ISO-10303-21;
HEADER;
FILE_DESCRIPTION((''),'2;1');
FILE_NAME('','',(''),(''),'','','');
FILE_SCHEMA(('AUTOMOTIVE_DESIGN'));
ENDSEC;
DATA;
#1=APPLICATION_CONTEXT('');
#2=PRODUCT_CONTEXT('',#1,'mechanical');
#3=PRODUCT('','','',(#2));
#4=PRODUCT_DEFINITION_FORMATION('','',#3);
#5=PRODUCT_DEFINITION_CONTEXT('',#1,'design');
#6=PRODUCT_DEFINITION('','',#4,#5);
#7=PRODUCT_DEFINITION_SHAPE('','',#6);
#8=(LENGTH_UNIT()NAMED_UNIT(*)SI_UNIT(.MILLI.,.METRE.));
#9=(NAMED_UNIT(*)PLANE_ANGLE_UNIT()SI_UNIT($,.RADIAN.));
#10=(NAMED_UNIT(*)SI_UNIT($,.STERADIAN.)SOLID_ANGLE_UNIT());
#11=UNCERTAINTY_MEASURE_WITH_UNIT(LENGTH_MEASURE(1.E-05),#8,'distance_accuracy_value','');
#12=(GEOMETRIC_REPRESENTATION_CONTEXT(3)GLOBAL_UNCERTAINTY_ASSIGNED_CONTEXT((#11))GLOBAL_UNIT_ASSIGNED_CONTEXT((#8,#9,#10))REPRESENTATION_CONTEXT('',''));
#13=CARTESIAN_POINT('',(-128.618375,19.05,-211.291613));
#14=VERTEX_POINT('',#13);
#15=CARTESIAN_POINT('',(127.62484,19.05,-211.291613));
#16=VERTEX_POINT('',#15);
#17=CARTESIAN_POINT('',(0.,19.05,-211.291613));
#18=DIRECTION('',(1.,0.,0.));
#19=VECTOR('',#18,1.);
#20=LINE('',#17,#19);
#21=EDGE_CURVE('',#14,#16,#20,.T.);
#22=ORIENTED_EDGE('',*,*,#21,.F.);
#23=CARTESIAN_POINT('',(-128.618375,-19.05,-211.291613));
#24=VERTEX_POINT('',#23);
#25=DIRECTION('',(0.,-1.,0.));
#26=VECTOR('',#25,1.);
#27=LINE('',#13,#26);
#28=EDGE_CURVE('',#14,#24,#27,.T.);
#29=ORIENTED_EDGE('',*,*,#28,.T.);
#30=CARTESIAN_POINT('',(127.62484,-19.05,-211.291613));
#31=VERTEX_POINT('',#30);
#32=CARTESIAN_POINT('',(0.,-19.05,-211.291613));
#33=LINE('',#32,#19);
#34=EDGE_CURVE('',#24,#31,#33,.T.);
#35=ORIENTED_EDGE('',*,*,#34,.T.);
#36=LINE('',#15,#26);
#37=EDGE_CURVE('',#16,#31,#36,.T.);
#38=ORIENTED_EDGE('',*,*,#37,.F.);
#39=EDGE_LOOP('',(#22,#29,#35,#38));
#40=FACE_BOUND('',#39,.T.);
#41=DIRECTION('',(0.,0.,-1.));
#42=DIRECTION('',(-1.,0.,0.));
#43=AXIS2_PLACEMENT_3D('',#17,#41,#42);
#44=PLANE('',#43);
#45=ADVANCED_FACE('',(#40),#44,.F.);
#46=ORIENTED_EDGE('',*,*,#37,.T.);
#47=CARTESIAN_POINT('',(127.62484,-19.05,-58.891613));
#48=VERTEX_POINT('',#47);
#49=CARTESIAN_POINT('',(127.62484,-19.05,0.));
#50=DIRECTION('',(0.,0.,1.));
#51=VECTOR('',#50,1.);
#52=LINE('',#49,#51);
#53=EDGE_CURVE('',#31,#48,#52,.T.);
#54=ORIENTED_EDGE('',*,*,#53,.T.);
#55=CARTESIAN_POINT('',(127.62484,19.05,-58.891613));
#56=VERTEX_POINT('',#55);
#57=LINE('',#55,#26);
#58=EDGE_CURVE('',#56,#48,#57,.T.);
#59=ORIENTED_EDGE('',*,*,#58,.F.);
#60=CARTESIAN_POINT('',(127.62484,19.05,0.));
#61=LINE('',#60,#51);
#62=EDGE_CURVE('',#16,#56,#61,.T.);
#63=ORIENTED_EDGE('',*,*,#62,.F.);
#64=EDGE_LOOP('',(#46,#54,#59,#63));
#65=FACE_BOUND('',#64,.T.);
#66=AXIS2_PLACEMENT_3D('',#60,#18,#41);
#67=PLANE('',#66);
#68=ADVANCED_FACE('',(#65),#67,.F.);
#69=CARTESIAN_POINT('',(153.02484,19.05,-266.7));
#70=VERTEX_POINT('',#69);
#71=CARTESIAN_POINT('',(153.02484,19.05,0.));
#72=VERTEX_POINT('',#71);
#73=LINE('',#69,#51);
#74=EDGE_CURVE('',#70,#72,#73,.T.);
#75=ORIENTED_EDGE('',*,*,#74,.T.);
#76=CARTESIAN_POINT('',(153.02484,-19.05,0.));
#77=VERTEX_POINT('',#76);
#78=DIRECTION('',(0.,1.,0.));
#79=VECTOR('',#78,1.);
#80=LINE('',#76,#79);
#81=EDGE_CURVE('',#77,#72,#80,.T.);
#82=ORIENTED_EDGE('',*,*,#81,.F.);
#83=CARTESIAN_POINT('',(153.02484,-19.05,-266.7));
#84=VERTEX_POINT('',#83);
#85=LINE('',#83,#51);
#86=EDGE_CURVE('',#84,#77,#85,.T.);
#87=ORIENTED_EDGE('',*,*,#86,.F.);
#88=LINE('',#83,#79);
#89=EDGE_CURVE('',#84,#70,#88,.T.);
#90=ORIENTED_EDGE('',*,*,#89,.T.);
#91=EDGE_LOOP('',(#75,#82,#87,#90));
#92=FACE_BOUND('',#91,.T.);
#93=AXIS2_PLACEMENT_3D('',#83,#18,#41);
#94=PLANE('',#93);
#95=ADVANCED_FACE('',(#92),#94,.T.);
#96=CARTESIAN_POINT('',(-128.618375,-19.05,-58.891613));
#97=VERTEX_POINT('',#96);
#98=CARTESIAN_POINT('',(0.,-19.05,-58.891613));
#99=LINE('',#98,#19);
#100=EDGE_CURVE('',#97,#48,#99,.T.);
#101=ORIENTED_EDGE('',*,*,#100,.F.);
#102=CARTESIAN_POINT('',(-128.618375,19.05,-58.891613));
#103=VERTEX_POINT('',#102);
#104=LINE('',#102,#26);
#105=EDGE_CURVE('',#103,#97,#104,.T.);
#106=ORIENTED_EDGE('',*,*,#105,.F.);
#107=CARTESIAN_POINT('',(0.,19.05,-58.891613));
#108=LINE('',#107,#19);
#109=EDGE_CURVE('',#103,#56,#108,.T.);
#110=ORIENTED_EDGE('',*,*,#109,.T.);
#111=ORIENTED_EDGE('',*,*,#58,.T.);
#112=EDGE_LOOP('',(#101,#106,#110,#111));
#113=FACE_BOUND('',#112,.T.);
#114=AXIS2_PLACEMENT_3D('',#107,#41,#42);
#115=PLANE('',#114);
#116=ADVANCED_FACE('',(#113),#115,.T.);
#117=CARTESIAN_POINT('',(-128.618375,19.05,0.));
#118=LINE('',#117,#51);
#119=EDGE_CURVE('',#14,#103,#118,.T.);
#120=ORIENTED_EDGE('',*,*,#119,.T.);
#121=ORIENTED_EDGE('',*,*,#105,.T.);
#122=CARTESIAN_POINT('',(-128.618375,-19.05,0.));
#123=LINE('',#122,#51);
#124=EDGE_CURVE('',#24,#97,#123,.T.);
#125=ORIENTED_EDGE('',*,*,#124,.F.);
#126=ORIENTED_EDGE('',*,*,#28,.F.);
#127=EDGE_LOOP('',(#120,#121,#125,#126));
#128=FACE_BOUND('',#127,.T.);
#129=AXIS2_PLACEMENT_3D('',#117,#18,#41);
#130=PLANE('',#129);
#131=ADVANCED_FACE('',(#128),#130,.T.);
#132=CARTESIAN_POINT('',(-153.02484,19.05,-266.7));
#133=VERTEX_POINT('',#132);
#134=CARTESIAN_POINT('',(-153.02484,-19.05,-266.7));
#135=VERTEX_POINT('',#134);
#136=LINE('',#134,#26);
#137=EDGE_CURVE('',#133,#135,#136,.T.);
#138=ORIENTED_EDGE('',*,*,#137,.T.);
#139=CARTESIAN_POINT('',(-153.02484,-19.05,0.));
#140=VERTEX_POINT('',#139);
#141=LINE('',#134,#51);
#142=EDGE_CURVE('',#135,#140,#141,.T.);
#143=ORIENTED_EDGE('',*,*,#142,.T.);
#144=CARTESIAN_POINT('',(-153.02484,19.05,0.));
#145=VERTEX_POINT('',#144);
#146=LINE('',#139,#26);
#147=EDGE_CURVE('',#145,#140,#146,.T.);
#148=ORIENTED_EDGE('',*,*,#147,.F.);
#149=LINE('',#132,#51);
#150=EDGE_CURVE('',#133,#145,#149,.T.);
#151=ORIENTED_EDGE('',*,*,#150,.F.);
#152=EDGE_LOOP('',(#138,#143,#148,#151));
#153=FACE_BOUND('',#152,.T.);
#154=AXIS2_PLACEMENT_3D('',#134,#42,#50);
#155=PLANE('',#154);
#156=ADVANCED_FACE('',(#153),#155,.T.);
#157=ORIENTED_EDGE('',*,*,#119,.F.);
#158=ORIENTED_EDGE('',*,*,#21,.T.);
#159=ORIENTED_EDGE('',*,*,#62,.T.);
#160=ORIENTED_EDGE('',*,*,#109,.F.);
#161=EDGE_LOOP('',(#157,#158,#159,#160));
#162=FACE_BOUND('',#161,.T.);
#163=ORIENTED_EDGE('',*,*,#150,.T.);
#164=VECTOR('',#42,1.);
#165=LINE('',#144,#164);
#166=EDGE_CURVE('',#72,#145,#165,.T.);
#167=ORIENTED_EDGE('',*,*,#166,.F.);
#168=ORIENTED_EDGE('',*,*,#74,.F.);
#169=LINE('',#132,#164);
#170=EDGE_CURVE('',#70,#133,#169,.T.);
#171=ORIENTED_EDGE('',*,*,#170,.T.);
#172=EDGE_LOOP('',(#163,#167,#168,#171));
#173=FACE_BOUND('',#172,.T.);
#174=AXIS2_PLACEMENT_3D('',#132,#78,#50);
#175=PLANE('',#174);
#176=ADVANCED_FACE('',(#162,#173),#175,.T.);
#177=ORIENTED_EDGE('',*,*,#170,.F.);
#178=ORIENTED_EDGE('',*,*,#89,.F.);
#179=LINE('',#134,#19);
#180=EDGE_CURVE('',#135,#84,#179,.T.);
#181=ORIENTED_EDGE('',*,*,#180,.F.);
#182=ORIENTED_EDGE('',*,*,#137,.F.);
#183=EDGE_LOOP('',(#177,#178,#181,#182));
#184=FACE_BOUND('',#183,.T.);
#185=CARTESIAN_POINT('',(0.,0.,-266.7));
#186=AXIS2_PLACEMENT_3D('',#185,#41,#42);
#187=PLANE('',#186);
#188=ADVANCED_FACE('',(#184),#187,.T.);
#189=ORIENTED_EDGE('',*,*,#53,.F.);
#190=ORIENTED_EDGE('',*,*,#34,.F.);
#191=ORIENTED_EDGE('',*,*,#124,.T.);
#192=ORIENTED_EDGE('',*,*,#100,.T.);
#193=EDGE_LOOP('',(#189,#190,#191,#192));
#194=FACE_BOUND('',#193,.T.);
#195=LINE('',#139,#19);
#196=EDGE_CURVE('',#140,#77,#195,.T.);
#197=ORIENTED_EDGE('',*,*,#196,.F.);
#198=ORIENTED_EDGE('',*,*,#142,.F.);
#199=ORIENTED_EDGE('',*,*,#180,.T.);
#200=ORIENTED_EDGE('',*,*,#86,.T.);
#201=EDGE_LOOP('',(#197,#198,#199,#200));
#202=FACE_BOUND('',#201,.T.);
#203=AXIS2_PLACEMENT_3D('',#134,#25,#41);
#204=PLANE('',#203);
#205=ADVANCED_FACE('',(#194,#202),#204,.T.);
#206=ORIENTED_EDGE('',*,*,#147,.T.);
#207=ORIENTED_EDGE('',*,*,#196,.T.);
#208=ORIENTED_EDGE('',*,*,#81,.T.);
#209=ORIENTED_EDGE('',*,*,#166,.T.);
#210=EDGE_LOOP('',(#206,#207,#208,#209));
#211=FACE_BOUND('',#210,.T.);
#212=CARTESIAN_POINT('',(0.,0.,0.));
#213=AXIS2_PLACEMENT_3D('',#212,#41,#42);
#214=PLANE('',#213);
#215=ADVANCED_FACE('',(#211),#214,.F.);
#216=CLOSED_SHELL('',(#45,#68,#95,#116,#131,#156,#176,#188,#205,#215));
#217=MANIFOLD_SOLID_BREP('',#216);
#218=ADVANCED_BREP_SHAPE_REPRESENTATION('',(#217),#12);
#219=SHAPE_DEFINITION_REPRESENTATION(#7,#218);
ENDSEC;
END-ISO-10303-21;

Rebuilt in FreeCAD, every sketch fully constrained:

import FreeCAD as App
import Part
import Sketcher
Q = App.Units.Quantity


def add_polygon(sketch, points):
    """Adds a closed chain of lines whose ends are joined by coincident constraints."""
    first, n = sketch.GeometryCount, len(points)
    for a, b in zip(points, points[1:] + points[:1]):
        sketch.addGeometry(Part.LineSegment(App.Vector(*a, 0), App.Vector(*b, 0)), False)
    for i in range(n):
        sketch.addConstraint(Sketcher.Constraint("Coincident", first + i, 2, first + (i + 1) % n, 1))

doc = App.newDocument("Part")
body = doc.addObject("PartDesign::Body", "Body")

# Sketch on XY plane
sketch1 = body.newObject("Sketcher::SketchObject", "Sketch")
sketch1.AttachmentSupport = (doc.getObject("XY_Plane"), [""])
sketch1.MapMode = "FlatFace"
add_polygon(sketch1, [(-153.02484, 19.05), (-153.02484, -19.05), (153.02484, -19.05), (153.02484, 19.05)])  # lines 0-3
sketch1.addConstraint([
    Sketcher.Constraint("Vertical", 0),
    Sketcher.Constraint("Horizontal", 1),
    Sketcher.Constraint("Vertical", 2),
    Sketcher.Constraint("Horizontal", 3),
    Sketcher.Constraint("Symmetric", 0, 2, 2, 2, -1, 1),
    Sketcher.Constraint("DistanceY", 0, 2, 0, 1, Q("1.5 in")),
    Sketcher.Constraint("DistanceX", 1, 1, 1, 2, Q("12.0492 in")),
])
pad1 = body.newObject("PartDesign::Pad", "Pad")
pad1.Profile = sketch1
pad1.Length = Q("10.5 in")
pad1.Reversed = True

# Sketch on XZ plane
sketch2 = body.newObject("Sketcher::SketchObject", "Sketch001")
sketch2.AttachmentSupport = (doc.getObject("XZ_Plane"), [""])
sketch2.MapMode = "FlatFace"
sketch2.AttachmentOffset = App.Placement(App.Vector(0, 0, 0.75 * 25.4), App.Rotation())
add_polygon(sketch2, [(-128.618375, -58.891613), (-128.618375, -211.291613), (127.62484, -211.291613), (127.62484, -58.891613)])  # lines 0-3
sketch2.addConstraint([
    Sketcher.Constraint("Vertical", 0),
    Sketcher.Constraint("Horizontal", 1),
    Sketcher.Constraint("Vertical", 2),
    Sketcher.Constraint("Horizontal", 3),
    Sketcher.Constraint("DistanceY", 0, 2, 0, 1, Q("6 in")),
    Sketcher.Constraint("DistanceX", -1, 1, 1, 2, Q("5.0246 in")),
    Sketcher.Constraint("DistanceX", 1, 1, 1, 2, Q("256.243215 mm")),
    Sketcher.Constraint("DistanceY", 0, 2, -1, 1, Q("211.291613 mm")),
])
pocket1 = body.newObject("PartDesign::Pocket", "Pocket")
pocket1.Profile = sketch2
pocket1.Type = "ThroughAll"

doc.recompute()
